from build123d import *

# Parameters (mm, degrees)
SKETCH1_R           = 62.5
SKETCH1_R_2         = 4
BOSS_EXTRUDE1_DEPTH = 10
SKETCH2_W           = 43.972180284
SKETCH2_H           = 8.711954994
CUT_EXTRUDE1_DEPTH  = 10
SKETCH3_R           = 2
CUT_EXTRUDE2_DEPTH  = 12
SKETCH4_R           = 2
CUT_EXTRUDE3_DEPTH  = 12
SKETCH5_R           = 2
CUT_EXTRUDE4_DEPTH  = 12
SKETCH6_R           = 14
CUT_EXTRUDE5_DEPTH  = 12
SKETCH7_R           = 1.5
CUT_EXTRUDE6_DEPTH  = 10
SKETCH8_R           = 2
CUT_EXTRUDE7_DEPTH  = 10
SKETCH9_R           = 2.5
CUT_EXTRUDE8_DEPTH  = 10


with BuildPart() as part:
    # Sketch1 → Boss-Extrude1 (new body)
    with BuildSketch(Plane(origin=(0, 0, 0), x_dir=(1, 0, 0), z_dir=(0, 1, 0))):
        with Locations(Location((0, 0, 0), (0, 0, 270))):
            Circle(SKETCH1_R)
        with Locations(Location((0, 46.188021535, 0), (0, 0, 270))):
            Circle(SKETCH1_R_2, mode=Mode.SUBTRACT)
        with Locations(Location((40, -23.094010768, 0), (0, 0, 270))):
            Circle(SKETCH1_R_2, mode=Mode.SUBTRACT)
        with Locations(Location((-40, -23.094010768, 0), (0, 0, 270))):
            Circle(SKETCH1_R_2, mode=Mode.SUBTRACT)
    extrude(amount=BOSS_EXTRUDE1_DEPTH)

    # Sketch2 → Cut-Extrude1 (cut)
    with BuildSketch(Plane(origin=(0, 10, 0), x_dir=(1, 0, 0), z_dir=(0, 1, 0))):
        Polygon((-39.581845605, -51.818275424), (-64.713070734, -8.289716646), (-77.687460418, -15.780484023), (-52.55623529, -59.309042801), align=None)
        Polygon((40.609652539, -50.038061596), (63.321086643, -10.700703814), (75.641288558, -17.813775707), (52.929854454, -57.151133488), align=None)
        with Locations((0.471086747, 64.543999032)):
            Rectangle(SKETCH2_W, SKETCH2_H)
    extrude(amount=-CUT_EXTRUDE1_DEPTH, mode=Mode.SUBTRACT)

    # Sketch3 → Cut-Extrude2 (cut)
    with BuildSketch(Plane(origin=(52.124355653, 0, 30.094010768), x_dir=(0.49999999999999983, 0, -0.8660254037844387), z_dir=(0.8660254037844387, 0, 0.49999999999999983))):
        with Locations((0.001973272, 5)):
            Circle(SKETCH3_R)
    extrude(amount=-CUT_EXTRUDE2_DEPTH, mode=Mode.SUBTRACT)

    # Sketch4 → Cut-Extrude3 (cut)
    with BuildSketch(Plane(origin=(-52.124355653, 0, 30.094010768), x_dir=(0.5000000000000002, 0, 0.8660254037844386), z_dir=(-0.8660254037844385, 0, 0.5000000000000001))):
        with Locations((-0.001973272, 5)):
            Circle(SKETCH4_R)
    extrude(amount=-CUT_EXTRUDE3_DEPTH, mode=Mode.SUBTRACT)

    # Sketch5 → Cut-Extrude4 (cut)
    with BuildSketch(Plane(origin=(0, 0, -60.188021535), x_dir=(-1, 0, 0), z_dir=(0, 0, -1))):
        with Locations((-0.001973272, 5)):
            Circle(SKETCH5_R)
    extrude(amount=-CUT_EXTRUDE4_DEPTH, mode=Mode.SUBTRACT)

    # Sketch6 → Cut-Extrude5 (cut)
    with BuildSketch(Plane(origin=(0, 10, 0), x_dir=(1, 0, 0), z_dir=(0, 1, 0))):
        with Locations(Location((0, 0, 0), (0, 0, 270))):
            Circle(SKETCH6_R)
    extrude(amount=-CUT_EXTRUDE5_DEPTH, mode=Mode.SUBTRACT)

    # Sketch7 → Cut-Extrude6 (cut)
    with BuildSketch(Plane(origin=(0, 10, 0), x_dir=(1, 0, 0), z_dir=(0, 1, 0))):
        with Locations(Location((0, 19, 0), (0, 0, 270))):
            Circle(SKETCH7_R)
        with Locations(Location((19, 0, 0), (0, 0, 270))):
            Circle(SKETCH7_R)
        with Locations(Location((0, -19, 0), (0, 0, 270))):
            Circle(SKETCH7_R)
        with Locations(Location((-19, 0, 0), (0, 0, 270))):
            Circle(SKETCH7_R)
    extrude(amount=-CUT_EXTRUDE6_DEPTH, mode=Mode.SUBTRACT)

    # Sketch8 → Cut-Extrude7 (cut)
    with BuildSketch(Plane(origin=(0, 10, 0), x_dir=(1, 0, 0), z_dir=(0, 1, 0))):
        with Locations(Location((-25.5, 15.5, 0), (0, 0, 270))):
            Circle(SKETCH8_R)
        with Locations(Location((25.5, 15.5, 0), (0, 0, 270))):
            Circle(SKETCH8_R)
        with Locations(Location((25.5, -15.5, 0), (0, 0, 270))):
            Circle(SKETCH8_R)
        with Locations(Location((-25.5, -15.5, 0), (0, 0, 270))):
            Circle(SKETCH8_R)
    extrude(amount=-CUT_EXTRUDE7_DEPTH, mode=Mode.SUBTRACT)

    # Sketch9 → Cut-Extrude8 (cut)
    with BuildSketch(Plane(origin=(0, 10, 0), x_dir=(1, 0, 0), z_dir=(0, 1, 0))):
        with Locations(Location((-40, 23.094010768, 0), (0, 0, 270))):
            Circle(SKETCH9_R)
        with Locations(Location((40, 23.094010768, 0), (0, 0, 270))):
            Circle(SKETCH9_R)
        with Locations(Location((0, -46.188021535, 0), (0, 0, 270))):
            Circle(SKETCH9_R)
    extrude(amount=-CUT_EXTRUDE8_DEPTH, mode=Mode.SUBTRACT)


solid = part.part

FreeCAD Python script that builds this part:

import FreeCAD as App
import Part
import Sketcher
from FreeCAD import Vector
Q = App.Units.Quantity

doc = App.newDocument("Part")
body = doc.addObject("PartDesign::Body", "Body")

# Sketch on XZ plane
sketch1 = body.newObject("Sketcher::SketchObject", "Sketch")
sketch1.AttachmentSupport = (doc.getObject("XZ_Plane"), [""])
sketch1.MapMode = "FlatFace"
sketch1.addGeometry(Part.Circle(Vector(0, 0, 0), Vector(0, 0, 1), 62.5), False)
sketch1.addGeometry(Part.Circle(Vector(0, -46.2, 0), Vector(0, 0, 1), 4), False)
sketch1.addGeometry(Part.Circle(Vector(-40, 23.1, 0), Vector(0, 0, 1), 4), False)
sketch1.addGeometry(Part.Circle(Vector(40, 23.1, 0), Vector(0, 0, 1), 4), False)
sketch1.addConstraint(Sketcher.Constraint("Coincident", 0, 3, -1, 1))
sketch1.addConstraint(Sketcher.Constraint("Equal", 1, 2))
sketch1.addConstraint(Sketcher.Constraint("Equal", 2, 3))
sketch1.addConstraint(Sketcher.Constraint("Symmetric", 2, 3, 3, 3, -2))
sketch1.addConstraint(Sketcher.Constraint("PointOnObject", 1, 3, -2))
sketch1.addConstraint(Sketcher.Constraint("Diameter", 0, 125.0))
sketch1.addConstraint(Sketcher.Constraint("Diameter", 1, 8.0))
sketch1.addConstraint(Sketcher.Constraint("DistanceX", 2, 3, -1, 1, 40.0))
sketch1.addConstraint(Sketcher.Constraint("DistanceY", 1, 3, -1, 1, 46.188022))
sketch1.addConstraint(Sketcher.Constraint("DistanceY", -1, 1, 2, 3, 23.094011))
pad1 = body.newObject("PartDesign::Pad", "Pad")
pad1.Profile = sketch1
pad1.Length = 10
pad1.Reversed = True

# Sketch on XZ plane
sketch2 = body.newObject("Sketcher::SketchObject", "Sketch001")
sketch2.AttachmentSupport = (doc.getObject("XZ_Plane"), [""])
sketch2.MapMode = "FlatFace"
sketch2.AttachmentOffset = App.Placement(Vector(0, 0, -10), App.Rotation())
sketch2.addGeometry(Part.LineSegment(Vector(-40, 52, 0), Vector(-65, 8, 0)), False)
sketch2.addGeometry(Part.LineSegment(Vector(-65, 8, 0), Vector(-78, 16, 0)), False)
sketch2.addGeometry(Part.LineSegment(Vector(-78, 16, 0), Vector(-53, 59, 0)), False)
sketch2.addGeometry(Part.LineSegment(Vector(-53, 59, 0), Vector(-40, 52, 0)), False)
sketch2.addGeometry(Part.LineSegment(Vector(63, 11, 0), Vector(41, 50, 0)), False)
sketch2.addGeometry(Part.LineSegment(Vector(41, 50, 0), Vector(53, 57, 0)), False)
sketch2.addGeometry(Part.LineSegment(Vector(53, 57, 0), Vector(76, 18, 0)), False)
sketch2.addGeometry(Part.LineSegment(Vector(76, 18, 0), Vector(63, 11, 0)), False)
sketch2.addGeometry(Part.LineSegment(Vector(-22, -69, 0), Vector(-22, -60, 0)), False)
sketch2.addGeometry(Part.LineSegment(Vector(-22, -60, 0), Vector(22, -60, 0)), False)
sketch2.addGeometry(Part.LineSegment(Vector(22, -60, 0), Vector(22, -69, 0)), False)
sketch2.addGeometry(Part.LineSegment(Vector(22, -69, 0), Vector(-22, -69, 0)), False)
sketch2.addConstraint(Sketcher.Constraint("Coincident", 0, 2, 1, 1))
sketch2.addConstraint(Sketcher.Constraint("Coincident", 1, 2, 2, 1))
sketch2.addConstraint(Sketcher.Constraint("Coincident", 2, 2, 3, 1))
sketch2.addConstraint(Sketcher.Constraint("Coincident", 3, 2, 0, 1))
sketch2.addConstraint(Sketcher.Constraint("Coincident", 4, 2, 5, 1))
sketch2.addConstraint(Sketcher.Constraint("Coincident", 5, 2, 6, 1))
sketch2.addConstraint(Sketcher.Constraint("Coincident", 6, 2, 7, 1))
sketch2.addConstraint(Sketcher.Constraint("Coincident", 7, 2, 4, 1))
sketch2.addConstraint(Sketcher.Constraint("Coincident", 8, 2, 9, 1))
sketch2.addConstraint(Sketcher.Constraint("Coincident", 9, 2, 10, 1))
sketch2.addConstraint(Sketcher.Constraint("Coincident", 10, 2, 11, 1))
sketch2.addConstraint(Sketcher.Constraint("Coincident", 11, 2, 8, 1))
sketch2.addConstraint(Sketcher.Constraint("Vertical", 8))
sketch2.addConstraint(Sketcher.Constraint("Horizontal", 9))
sketch2.addConstraint(Sketcher.Constraint("Vertical", 10))
sketch2.addConstraint(Sketcher.Constraint("Horizontal", 11))
sketch2.addConstraint(Sketcher.Constraint("Perpendicular", 0, 1))
sketch2.addConstraint(Sketcher.Constraint("Perpendicular", 1, 2))
sketch2.addConstraint(Sketcher.Constraint("Perpendicular", 2, 3))
sketch2.addConstraint(Sketcher.Constraint("Perpendicular", 4, 5))
sketch2.addConstraint(Sketcher.Constraint("Perpendicular", 5, 6))
sketch2.addConstraint(Sketcher.Constraint("Perpendicular", 6, 7))
sketch2.addConstraint(Sketcher.Constraint("Angle", 0, Q("-120 deg")))
sketch2.addConstraint(Sketcher.Constraint("Angle", 4, Q("120 deg")))
sketch2.addConstraint(Sketcher.Constraint("DistanceX", 9, 1, 9, 2, 43.97218))
sketch2.addConstraint(Sketcher.Constraint("DistanceX", 3, 2, 4, 2, 80.191498))
sketch2.addConstraint(Sketcher.Constraint("DistanceX", 4, 2, 5, 2, 12.320202))
sketch2.addConstraint(Sketcher.Constraint("DistanceY", 6, 2, 3, 2, 34.0045))
sketch2.addConstraint(Sketcher.Constraint("Distance", 0, 50.26245))
sketch2.addConstraint(Sketcher.Constraint("Distance", 4, 45.422868))
sketch2.addConstraint(Sketcher.Constraint("DistanceY", 8, 1, 8, 2, 8.711955))
sketch2.addConstraint(Sketcher.Constraint("DistanceX", 0, 2, -1, 1, 64.713071))
sketch2.addConstraint(Sketcher.Constraint("DistanceX", 1, 2, -1, 1, 77.68746))
sketch2.addConstraint(Sketcher.Constraint("DistanceY", -1, 1, 4, 2, 50.038062))
sketch2.addConstraint(Sketcher.Constraint("DistanceY", 8, 2, -1, 1, 60.188022))
sketch2.addConstraint(Sketcher.Constraint("DistanceX", 8, 2, 7, 2, 84.83609))
pocket1 = body.newObject("PartDesign::Pocket", "Pocket")
pocket1.Profile = sketch2
pocket1.Length = 10
pocket1.Reversed = True

# Sketch on an angled plane
sketch3 = body.newObject("Sketcher::SketchObject", "Sketch002")
sketch3.Placement = App.Placement(Vector(52.124356, 0, 30.094011), App.Rotation(Vector(0.5, 0, -0.866025404), Vector(0, 1, 0), Vector(0.866025404, 0, 0.5), "ZXY"))
sketch3.addGeometry(Part.Circle(Vector(0, 5, 0), Vector(0, 0, 1), 2), False)
sketch3.addConstraint(Sketcher.Constraint("Diameter", 0, 4.0))
sketch3.addConstraint(Sketcher.Constraint("DistanceY", -1, 1, 0, 3, 5.0))
sketch3.addConstraint(Sketcher.Constraint("DistanceX", -1, 1, 0, 3, 0.001973))
pocket2 = body.newObject("PartDesign::Pocket", "Pocket001")
pocket2.Profile = sketch3
pocket2.Length = 12

# Sketch on an angled plane
sketch4 = body.newObject("Sketcher::SketchObject", "Sketch003")
sketch4.Placement = App.Placement(Vector(-52.124356, 0, 30.094011), App.Rotation(Vector(0.5, 0, 0.866025404), Vector(0, 1, 0), Vector(-0.866025404, 0, 0.5), "ZXY"))
sketch4.addGeometry(Part.Circle(Vector(0, 5, 0), Vector(0, 0, 1), 2), False)
sketch4.addConstraint(Sketcher.Constraint("Diameter", 0, 4.0))
sketch4.addConstraint(Sketcher.Constraint("DistanceY", -1, 1, 0, 3, 5.0))
sketch4.addConstraint(Sketcher.Constraint("DistanceX", 0, 3, -1, 1, 0.001973))
pocket3 = body.newObject("PartDesign::Pocket", "Pocket002")
pocket3.Profile = sketch4
pocket3.Length = 12

# Sketch on XY plane
sketch5 = body.newObject("Sketcher::SketchObject", "Sketch004")
sketch5.AttachmentSupport = (doc.getObject("XY_Plane"), [""])
sketch5.MapMode = "FlatFace"
sketch5.AttachmentOffset = App.Placement(Vector(0, 0, -60.188022), App.Rotation())
sketch5.addGeometry(Part.Circle(Vector(0, 5, 0), Vector(0, 0, 1), 2), False)
sketch5.addConstraint(Sketcher.Constraint("Diameter", 0, 4.0))
sketch5.addConstraint(Sketcher.Constraint("DistanceY", -1, 1, 0, 3, 5.0))
sketch5.addConstraint(Sketcher.Constraint("DistanceX", -1, 1, 0, 3, 0.001973))
pocket4 = body.newObject("PartDesign::Pocket", "Pocket003")
pocket4.Profile = sketch5
pocket4.Length = 12
pocket4.Reversed = True

# Sketch on XZ plane
sketch6 = body.newObject("Sketcher::SketchObject", "Sketch005")
sketch6.AttachmentSupport = (doc.getObject("XZ_Plane"), [""])
sketch6.MapMode = "FlatFace"
sketch6.AttachmentOffset = App.Placement(Vector(0, 0, -10), App.Rotation())
sketch6.addGeometry(Part.Circle(Vector(0, 0, 0), Vector(0, 0, 1), 14), False)
sketch6.addConstraint(Sketcher.Constraint("Coincident", 0, 3, -1, 1))
sketch6.addConstraint(Sketcher.Constraint("Diameter", 0, 28.0))
pocket5 = body.newObject("PartDesign::Pocket", "Pocket004")
pocket5.Profile = sketch6
pocket5.Length = 12
pocket5.Reversed = True

# Sketch on XZ plane
sketch7 = body.newObject("Sketcher::SketchObject", "Sketch006")
sketch7.AttachmentSupport = (doc.getObject("XZ_Plane"), [""])
sketch7.MapMode = "FlatFace"
sketch7.AttachmentOffset = App.Placement(Vector(0, 0, -10), App.Rotation())
sketch7.addGeometry(Part.Circle(Vector(0, -19, 0), Vector(0, 0, 1), 1.5), False)
sketch7.addGeometry(Part.Circle(Vector(19, 0, 0), Vector(0, 0, 1), 1.5), False)
sketch7.addGeometry(Part.Circle(Vector(0, 19, 0), Vector(0, 0, 1), 1.5), False)
sketch7.addGeometry(Part.Circle(Vector(-19, 0, 0), Vector(0, 0, 1), 1.5), False)
sketch7.addConstraint(Sketcher.Constraint("Equal", 0, 1))
sketch7.addConstraint(Sketcher.Constraint("Equal", 1, 2))
sketch7.addConstraint(Sketcher.Constraint("Equal", 2, 3))
sketch7.addConstraint(Sketcher.Constraint("Symmetric", 0, 3, 2, 3, -1, 1))
sketch7.addConstraint(Sketcher.Constraint("Symmetric", 1, 3, 3, 3, -1, 1))
sketch7.addConstraint(Sketcher.Constraint("PointOnObject", 0, 3, -2))
sketch7.addConstraint(Sketcher.Constraint("PointOnObject", 1, 3, -1))
sketch7.addConstraint(Sketcher.Constraint("Diameter", 0, 3.0))
sketch7.addConstraint(Sketcher.Constraint("DistanceY", 0, 3, -1, 1, 19.0))
sketch7.addConstraint(Sketcher.Constraint("DistanceX", -1, 1, 1, 3, 19.0))
pocket6 = body.newObject("PartDesign::Pocket", "Pocket005")
pocket6.Profile = sketch7
pocket6.Length = 10
pocket6.Reversed = True

# Sketch on XZ plane
sketch8 = body.newObject("Sketcher::SketchObject", "Sketch007")
sketch8.AttachmentSupport = (doc.getObject("XZ_Plane"), [""])
sketch8.MapMode = "FlatFace"
sketch8.AttachmentOffset = App.Placement(Vector(0, 0, -10), App.Rotation())
sketch8.addGeometry(Part.Circle(Vector(-25.5, -15.5, 0), Vector(0, 0, 1), 2), False)
sketch8.addGeometry(Part.Circle(Vector(25.5, -15.5, 0), Vector(0, 0, 1), 2), False)
sketch8.addGeometry(Part.Circle(Vector(25.5, 15.5, 0), Vector(0, 0, 1), 2), False)
sketch8.addGeometry(Part.Circle(Vector(-25.5, 15.5, 0), Vector(0, 0, 1), 2), False)
sketch8.addConstraint(Sketcher.Constraint("Equal", 0, 1))
sketch8.addConstraint(Sketcher.Constraint("Equal", 1, 2))
sketch8.addConstraint(Sketcher.Constraint("Equal", 2, 3))
sketch8.addConstraint(Sketcher.Constraint("Symmetric", 0, 3, 2, 3, -1, 1))
sketch8.addConstraint(Sketcher.Constraint("Symmetric", 1, 3, 3, 3, -1, 1))
sketch8.addConstraint(Sketcher.Constraint("Symmetric", 0, 3, 1, 3, -2))
sketch8.addConstraint(Sketcher.Constraint("Diameter", 0, 4.0))
sketch8.addConstraint(Sketcher.Constraint("DistanceX", 0, 3, 1, 3, 51.0))
sketch8.addConstraint(Sketcher.Constraint("DistanceY", 1, 3, 2, 3, 31.0))
pocket7 = body.newObject("PartDesign::Pocket", "Pocket006")
pocket7.Profile = sketch8
pocket7.Length = 10
pocket7.Reversed = True

# Sketch on XZ plane
sketch9 = body.newObject("Sketcher::SketchObject", "Sketch008")
sketch9.AttachmentSupport = (doc.getObject("XZ_Plane"), [""])
sketch9.MapMode = "FlatFace"
sketch9.AttachmentOffset = App.Placement(Vector(0, 0, -10), App.Rotation())
sketch9.addGeometry(Part.Circle(Vector(-40, -23.1, 0), Vector(0, 0, 1), 2.5), False)
sketch9.addGeometry(Part.Circle(Vector(40, -23.1, 0), Vector(0, 0, 1), 2.5), False)
sketch9.addGeometry(Part.Circle(Vector(0, 46.2, 0), Vector(0, 0, 1), 2.5), False)
sketch9.addConstraint(Sketcher.Constraint("Equal", 0, 1))
sketch9.addConstraint(Sketcher.Constraint("Equal", 1, 2))
sketch9.addConstraint(Sketcher.Constraint("Symmetric", 0, 3, 1, 3, -2))
sketch9.addConstraint(Sketcher.Constraint("PointOnObject", 2, 3, -2))
sketch9.addConstraint(Sketcher.Constraint("Diameter", 0, 5.0))
sketch9.addConstraint(Sketcher.Constraint("DistanceX", 0, 3, -1, 1, 40.0))
sketch9.addConstraint(Sketcher.Constraint("DistanceY", 0, 3, -1, 1, 23.094011))
sketch9.addConstraint(Sketcher.Constraint("DistanceY", -1, 1, 2, 3, 46.188022))
pocket8 = body.newObject("PartDesign::Pocket", "Pocket007")
pocket8.Profile = sketch9
pocket8.Length = 10
pocket8.Reversed = True

doc.recompute()
